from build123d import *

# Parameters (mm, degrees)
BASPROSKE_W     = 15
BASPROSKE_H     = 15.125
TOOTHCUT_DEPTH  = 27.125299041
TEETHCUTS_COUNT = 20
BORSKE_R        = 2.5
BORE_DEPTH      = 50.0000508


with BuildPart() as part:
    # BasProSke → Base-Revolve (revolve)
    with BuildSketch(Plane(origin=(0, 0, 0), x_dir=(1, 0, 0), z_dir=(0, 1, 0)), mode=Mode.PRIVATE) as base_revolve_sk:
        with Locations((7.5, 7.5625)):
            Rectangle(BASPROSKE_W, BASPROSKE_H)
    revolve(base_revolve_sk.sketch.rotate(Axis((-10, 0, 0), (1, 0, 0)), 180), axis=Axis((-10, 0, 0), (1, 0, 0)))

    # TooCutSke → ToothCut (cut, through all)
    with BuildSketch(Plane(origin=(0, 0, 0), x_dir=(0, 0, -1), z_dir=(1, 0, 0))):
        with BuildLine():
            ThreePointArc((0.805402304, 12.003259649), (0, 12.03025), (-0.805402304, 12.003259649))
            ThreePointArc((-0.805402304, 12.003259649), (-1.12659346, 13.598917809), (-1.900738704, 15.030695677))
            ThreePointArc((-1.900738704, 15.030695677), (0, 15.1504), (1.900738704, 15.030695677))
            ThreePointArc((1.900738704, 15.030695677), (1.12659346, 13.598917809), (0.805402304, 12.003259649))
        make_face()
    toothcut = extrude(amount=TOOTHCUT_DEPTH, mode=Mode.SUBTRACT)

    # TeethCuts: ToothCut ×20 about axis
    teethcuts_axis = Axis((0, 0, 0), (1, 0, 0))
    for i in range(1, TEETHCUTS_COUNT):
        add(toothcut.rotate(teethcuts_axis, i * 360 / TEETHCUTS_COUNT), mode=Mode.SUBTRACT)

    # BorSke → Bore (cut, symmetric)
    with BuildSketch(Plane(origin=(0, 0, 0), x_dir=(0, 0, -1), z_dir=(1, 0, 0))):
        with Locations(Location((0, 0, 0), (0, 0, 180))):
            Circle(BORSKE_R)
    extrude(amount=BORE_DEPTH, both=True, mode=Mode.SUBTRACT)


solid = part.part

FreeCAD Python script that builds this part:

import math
import FreeCAD as App
import Part
import Sketcher
Q = App.Units.Quantity

doc = App.newDocument("Part")
body = doc.addObject("PartDesign::Body", "Body")

sketch1 = body.newObject("Sketcher::SketchObject", "Sketch")
sketch1.AttachmentSupport = (doc.getObject("XZ_Plane"), [""])
sketch1.MapMode = "FlatFace"
sketch1.addGeometry([
    Part.LineSegment(App.Vector(0, -15, 0), App.Vector(0, 0, 0)),
    Part.LineSegment(App.Vector(0, 0, 0), App.Vector(15, 0, 0)),
    Part.LineSegment(App.Vector(15, 0, 0), App.Vector(15, -15, 0)),
    Part.LineSegment(App.Vector(15, -15, 0), App.Vector(0, -15, 0)),
], False)
sketch1.addConstraint([
    Sketcher.Constraint("Coincident", 0, 2, 1, 1),
    Sketcher.Constraint("Coincident", 1, 2, 2, 1),
    Sketcher.Constraint("Coincident", 2, 2, 3, 1),
    Sketcher.Constraint("Coincident", 3, 2, 0, 1),
    Sketcher.Constraint("Vertical", 0),
    Sketcher.Constraint("Horizontal", 1),
    Sketcher.Constraint("Vertical", 2),
    Sketcher.Constraint("Horizontal", 3),
    Sketcher.Constraint("Coincident", 0, 2, -1, 1),
    Sketcher.Constraint("DistanceX", 1, 1, 1, 2, Q("15 mm")),
    Sketcher.Constraint("DistanceY", 0, 1, 0, 2, Q("15.125 mm")),
])
revolution = body.newObject("PartDesign::Revolution", "Revolution")
revolution.Profile = sketch1
revolution.ReferenceAxis = (sketch1, ["H_Axis"])
revolution.Angle = 360

sketch2 = body.newObject("Sketcher::SketchObject", "Sketch001")
sketch2.AttachmentSupport = (doc.getObject("YZ_Plane"), [""])
sketch2.MapMode = "FlatFace"
sketch2.addGeometry([
    Part.ArcOfCircle(Part.Circle(App.Vector(0, 0, 0), App.Vector(0, 0, 1), 12), math.radians(-3.84), math.radians(3.84)),
    Part.ArcOfCircle(Part.Circle(App.Vector(11.7, -6.3, 0), App.Vector(0, 0, 1), 5.5), math.radians(53), math.radians(87)),
    Part.ArcOfCircle(Part.Circle(App.Vector(0, 0, 0), App.Vector(0, 0, 1), 15.2), math.radians(-7.21), math.radians(7.21)),
    Part.ArcOfCircle(Part.Circle(App.Vector(11.7, 6.3, 0), App.Vector(0, 0, 1), 5.5), math.radians(-87), math.radians(-53)),
], False)
sketch2.addConstraint([
    Sketcher.Constraint("Coincident", 0, 1, 1, 2),
    Sketcher.Constraint("Coincident", 1, 1, 2, 1),
    Sketcher.Constraint("Coincident", 2, 2, 3, 2),
    Sketcher.Constraint("Coincident", 3, 1, 0, 2),
    Sketcher.Constraint("Coincident", 0, 3, -1, 1),
    Sketcher.Constraint("Coincident", 2, 3, -1, 1),
    Sketcher.Constraint("Equal", 1, 3),
    Sketcher.Constraint("Symmetric", 1, 3, 3, 3, -1),
    Sketcher.Constraint("Radius", 1, Q("5.5 mm")),
    Sketcher.Constraint("Radius", 2, Q("15.1504 mm")),
    Sketcher.Constraint("Radius", 0, Q("12.03025 mm")),
    Sketcher.Constraint("DistanceX", -1, 1, 0, 1, Q("12.00326 mm")),
    Sketcher.Constraint("DistanceY", 1, 1, -1, 1, Q("1.900739 mm")),
])
pocket1 = body.newObject("PartDesign::Pocket", "Pocket")
pocket1.Profile = sketch2
pocket1.Type = "ThroughAll"
pocket1.Reversed = True
doc.recompute()

polarpattern = body.newObject("PartDesign::PolarPattern", "PolarPattern")
polarpattern.Originals = [pocket1]
polarpattern.Axis = (doc.getObject("X_Axis"), [""])
polarpattern.Angle = 360
polarpattern.Occurrences = 20
body.Tip = polarpattern

sketch3 = body.newObject("Sketcher::SketchObject", "Sketch002")
sketch3.AttachmentSupport = (doc.getObject("YZ_Plane"), [""])
sketch3.MapMode = "FlatFace"
sketch3.addGeometry(Part.Circle(App.Vector(0, 0, 0), App.Vector(0, 0, 1), 2.5), False)
sketch3.addConstraint([
    Sketcher.Constraint("Coincident", 0, 3, -1, 1),
    Sketcher.Constraint("Diameter", 0, Q("5 mm")),
])
pocket2 = body.newObject("PartDesign::Pocket", "Pocket001")
pocket2.Profile = sketch3
pocket2.Length = 100.000102
pocket2.Midplane = True

doc.recompute()
